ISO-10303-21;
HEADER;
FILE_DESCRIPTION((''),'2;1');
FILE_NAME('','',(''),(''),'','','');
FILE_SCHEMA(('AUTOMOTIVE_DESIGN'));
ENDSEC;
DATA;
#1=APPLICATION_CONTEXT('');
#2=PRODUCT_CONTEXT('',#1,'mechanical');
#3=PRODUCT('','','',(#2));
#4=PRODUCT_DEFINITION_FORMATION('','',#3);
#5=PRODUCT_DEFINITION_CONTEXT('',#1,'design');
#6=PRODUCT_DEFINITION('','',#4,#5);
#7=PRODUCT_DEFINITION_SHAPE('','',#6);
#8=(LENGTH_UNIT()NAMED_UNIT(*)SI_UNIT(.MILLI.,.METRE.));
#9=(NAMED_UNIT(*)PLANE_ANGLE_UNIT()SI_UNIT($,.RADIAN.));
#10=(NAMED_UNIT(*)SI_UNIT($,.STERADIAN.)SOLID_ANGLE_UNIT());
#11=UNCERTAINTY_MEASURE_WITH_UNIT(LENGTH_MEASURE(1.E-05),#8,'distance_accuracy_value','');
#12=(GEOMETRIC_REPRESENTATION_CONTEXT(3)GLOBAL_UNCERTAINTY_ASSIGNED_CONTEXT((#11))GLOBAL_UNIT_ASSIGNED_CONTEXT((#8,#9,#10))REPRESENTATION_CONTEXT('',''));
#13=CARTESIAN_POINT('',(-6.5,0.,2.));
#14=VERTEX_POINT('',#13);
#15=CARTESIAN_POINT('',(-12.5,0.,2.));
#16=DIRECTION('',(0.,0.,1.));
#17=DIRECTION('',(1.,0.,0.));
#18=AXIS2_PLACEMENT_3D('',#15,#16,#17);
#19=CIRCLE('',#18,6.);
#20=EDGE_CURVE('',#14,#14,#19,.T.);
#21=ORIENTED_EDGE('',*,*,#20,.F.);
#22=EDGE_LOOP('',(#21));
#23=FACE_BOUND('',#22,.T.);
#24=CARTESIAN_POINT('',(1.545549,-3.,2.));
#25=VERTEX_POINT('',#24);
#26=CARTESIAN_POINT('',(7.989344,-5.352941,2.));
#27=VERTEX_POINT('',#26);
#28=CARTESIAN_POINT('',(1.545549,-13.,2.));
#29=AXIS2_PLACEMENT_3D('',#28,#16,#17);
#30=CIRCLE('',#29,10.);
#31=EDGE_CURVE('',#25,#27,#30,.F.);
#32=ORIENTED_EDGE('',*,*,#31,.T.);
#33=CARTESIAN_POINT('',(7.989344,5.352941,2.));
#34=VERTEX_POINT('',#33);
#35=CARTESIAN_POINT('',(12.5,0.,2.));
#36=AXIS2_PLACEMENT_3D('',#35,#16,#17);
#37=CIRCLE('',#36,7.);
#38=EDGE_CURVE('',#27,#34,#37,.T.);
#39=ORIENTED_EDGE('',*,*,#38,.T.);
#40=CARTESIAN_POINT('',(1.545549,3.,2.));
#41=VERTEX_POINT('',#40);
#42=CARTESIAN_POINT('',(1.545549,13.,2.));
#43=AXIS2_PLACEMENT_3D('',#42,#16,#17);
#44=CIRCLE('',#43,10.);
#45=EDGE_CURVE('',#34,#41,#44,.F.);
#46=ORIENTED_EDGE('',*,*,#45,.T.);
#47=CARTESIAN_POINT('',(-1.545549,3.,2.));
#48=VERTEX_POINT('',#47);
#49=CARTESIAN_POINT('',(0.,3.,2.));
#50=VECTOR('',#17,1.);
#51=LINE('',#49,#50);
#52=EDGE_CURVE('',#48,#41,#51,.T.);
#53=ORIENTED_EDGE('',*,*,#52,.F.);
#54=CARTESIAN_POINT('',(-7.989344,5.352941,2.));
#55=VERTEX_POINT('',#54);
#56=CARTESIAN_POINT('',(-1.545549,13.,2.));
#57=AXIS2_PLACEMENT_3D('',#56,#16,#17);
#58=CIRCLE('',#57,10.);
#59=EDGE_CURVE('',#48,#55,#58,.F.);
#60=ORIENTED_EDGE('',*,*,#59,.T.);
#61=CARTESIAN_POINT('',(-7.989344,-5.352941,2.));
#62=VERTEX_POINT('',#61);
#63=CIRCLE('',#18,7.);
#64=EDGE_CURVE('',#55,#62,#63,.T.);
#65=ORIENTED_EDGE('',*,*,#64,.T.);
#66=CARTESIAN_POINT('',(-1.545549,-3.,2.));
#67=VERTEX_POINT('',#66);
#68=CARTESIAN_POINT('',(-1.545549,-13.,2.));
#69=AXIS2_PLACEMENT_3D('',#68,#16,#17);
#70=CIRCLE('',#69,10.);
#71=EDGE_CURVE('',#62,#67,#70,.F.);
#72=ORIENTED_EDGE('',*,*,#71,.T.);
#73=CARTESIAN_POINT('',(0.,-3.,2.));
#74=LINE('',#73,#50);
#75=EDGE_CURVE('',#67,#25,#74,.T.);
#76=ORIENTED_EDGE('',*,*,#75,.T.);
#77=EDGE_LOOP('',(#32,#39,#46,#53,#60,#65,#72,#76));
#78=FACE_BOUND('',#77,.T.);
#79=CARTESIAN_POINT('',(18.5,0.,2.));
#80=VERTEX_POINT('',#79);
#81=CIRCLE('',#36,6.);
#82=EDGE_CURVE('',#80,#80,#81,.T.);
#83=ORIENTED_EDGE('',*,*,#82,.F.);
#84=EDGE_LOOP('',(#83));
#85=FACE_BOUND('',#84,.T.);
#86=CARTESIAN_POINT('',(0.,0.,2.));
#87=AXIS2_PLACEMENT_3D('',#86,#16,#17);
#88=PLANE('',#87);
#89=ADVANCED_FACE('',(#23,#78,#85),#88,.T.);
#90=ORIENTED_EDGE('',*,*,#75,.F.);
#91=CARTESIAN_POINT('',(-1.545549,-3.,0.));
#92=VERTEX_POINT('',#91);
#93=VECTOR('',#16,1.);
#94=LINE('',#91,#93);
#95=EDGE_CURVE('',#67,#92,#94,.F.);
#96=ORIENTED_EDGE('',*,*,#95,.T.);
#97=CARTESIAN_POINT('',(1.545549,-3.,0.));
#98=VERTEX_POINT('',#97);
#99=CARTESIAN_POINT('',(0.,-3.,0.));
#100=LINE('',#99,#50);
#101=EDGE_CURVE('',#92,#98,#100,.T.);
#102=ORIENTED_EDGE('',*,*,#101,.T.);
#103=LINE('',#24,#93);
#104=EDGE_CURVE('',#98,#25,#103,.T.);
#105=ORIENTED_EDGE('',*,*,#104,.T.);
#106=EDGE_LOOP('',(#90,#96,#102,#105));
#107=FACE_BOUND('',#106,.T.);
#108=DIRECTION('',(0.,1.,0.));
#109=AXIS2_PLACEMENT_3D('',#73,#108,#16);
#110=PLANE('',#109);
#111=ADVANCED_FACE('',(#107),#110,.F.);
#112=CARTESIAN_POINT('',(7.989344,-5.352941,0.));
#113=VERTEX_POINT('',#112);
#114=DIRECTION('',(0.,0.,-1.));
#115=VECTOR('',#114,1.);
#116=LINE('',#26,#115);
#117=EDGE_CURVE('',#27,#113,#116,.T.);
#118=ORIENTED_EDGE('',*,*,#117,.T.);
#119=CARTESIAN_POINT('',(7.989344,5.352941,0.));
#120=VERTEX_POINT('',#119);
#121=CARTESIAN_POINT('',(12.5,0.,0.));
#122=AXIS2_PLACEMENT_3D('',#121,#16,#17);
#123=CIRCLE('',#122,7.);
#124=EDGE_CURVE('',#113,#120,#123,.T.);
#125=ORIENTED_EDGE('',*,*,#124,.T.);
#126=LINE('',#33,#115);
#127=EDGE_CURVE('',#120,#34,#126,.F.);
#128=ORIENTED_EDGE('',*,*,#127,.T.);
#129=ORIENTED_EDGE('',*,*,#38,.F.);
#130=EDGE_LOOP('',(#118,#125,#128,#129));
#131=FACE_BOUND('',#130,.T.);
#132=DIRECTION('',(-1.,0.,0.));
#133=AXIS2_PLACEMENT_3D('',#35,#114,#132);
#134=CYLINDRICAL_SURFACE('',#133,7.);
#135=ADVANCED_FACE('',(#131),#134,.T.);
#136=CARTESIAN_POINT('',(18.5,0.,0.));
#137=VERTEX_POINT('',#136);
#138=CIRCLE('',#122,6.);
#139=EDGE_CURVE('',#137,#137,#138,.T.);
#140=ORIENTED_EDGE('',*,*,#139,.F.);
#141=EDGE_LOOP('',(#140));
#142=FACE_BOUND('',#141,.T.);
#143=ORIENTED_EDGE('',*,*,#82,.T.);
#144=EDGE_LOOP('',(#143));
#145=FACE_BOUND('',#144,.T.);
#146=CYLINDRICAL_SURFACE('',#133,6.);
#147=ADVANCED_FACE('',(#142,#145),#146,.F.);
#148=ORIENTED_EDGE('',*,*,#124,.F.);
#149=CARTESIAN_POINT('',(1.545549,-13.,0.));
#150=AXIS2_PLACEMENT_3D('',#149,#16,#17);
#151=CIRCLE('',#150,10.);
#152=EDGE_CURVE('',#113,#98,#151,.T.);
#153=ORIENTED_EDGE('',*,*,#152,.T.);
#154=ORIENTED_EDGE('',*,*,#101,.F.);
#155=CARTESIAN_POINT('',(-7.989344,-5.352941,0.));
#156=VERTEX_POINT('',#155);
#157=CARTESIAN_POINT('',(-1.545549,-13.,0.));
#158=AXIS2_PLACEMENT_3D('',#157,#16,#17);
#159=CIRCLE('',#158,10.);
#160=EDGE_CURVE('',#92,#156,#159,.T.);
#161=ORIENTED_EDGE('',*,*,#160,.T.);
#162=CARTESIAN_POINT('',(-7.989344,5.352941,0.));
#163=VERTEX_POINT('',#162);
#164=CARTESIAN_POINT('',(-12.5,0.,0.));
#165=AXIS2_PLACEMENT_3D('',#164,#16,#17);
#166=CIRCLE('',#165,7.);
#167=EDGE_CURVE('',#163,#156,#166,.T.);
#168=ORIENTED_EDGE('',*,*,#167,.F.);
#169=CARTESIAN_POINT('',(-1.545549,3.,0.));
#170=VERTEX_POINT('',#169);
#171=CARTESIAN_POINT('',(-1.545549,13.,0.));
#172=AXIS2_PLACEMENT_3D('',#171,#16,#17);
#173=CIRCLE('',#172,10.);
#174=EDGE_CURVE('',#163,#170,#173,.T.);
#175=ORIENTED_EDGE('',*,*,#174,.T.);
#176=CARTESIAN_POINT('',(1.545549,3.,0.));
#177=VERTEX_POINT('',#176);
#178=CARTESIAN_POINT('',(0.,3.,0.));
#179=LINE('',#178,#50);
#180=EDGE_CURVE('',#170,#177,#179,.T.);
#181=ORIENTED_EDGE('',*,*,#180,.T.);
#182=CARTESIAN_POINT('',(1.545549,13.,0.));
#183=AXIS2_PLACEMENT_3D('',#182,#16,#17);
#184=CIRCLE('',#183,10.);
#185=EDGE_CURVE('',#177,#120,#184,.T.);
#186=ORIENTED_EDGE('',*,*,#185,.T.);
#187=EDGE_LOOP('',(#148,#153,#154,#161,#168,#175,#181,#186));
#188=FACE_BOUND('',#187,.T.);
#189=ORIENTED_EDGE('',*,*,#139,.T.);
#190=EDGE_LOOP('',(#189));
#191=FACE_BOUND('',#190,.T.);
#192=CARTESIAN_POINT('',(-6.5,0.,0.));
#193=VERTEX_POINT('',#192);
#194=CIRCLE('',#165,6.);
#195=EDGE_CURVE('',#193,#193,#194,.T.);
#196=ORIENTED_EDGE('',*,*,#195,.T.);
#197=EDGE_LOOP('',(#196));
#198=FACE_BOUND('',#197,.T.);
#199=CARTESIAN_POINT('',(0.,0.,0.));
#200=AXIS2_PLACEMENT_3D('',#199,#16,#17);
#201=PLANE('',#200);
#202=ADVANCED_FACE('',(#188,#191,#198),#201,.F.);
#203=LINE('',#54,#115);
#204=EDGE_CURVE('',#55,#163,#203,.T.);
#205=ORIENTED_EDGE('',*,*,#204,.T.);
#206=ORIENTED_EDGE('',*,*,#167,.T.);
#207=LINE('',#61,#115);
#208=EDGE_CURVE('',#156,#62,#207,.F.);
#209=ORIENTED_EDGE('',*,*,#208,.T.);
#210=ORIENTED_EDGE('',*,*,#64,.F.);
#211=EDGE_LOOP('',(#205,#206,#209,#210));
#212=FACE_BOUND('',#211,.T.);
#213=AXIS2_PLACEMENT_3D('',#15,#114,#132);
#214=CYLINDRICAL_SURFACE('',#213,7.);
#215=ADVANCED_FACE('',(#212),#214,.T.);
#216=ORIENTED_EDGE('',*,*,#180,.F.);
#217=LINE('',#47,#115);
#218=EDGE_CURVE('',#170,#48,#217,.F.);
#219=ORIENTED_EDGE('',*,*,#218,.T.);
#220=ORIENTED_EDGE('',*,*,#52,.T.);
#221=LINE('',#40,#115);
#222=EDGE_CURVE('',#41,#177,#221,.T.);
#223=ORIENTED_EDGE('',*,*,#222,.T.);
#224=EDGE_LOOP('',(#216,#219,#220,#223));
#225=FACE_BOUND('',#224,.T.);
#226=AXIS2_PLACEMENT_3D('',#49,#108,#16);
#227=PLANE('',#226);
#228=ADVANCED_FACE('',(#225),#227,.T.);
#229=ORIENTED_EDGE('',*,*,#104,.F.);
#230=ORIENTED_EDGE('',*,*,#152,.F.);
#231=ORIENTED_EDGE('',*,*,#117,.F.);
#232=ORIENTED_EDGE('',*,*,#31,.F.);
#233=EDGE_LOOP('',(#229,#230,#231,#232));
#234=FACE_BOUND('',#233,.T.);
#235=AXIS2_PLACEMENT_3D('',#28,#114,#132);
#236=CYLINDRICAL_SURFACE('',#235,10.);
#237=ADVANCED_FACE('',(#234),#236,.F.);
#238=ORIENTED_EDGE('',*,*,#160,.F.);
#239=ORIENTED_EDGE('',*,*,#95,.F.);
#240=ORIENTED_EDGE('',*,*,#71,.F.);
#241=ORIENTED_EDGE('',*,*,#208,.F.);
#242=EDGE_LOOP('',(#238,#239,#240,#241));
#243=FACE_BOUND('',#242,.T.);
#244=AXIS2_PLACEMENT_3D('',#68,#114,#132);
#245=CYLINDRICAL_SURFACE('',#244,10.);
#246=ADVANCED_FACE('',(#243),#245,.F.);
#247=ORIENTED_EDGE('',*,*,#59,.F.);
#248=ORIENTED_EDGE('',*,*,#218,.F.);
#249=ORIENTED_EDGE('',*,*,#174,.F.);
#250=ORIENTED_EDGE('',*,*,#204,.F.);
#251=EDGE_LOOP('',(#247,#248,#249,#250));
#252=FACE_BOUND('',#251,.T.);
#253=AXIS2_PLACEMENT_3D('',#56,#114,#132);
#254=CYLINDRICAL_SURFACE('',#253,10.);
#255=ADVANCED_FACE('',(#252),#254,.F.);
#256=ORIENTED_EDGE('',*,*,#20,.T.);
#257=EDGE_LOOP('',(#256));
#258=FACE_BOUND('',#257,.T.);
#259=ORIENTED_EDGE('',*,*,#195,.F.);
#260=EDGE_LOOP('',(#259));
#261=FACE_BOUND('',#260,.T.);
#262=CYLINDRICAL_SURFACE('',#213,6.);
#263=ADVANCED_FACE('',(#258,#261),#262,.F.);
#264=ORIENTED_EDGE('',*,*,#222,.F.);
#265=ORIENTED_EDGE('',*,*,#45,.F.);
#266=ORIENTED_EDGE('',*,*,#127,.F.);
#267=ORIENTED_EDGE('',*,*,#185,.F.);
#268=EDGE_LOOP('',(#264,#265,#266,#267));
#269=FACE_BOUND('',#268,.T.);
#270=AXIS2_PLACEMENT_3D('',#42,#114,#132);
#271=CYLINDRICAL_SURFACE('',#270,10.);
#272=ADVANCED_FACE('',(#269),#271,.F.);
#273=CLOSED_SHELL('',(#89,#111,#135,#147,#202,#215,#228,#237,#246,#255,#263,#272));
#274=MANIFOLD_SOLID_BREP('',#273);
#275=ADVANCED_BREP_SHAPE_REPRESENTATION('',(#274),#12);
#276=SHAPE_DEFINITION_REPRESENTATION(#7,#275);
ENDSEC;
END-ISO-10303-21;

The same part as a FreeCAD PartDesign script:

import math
import FreeCAD as App
import Part
import Sketcher
Q = App.Units.Quantity


def edges_at(feature, points):
    """Names of the edges that pass closest to the given points."""
    edges = feature.Shape.Edges
    near = lambda p: min(range(len(edges)), key=lambda i: edges[i].distToShape(Part.Vertex(*p))[0])
    return sorted({f"Edge{near(p) + 1}" for p in points})

doc = App.newDocument("Part")
params = doc.addObject("Spreadsheet::Sheet", "Params")
for row, (alias, value) in enumerate([
    ("sketch1_diameter", "12 mm"),
    ("sketch1_radius", "7 mm"),
    ("pad1_length", "2 mm"),
    ("fillet_radius", "10 mm"),
], start=1):
    params.set(f"A{row}", alias)
    params.set(f"B{row}", "=" + value)
    params.setAlias(f"B{row}", alias)

body = doc.addObject("PartDesign::Body", "Body")

sketch1 = body.newObject("Sketcher::SketchObject", "Sketch")
sketch1.AttachmentSupport = (doc.getObject("XY_Plane"), [""])
sketch1.MapMode = "FlatFace"
sketch1.addGeometry([
    Part.ArcOfCircle(Part.Circle(App.Vector(-12.5, 0, 0), App.Vector(0, 0, 1), 7), math.radians(25.376934), math.radians(334.623066)),
    Part.LineSegment(App.Vector(-6.175445, -3, 0), App.Vector(6.175445, -3, 0)),
    Part.ArcOfCircle(Part.Circle(App.Vector(12.5, 0, 0), App.Vector(0, 0, 1), 7), math.radians(-154.623066), math.radians(154.623066)),
    Part.LineSegment(App.Vector(6.175445, 3, 0), App.Vector(-6.175445, 3, 0)),
    Part.Circle(App.Vector(-12.5, 0, 0), App.Vector(0, 0, 1), 6),
    Part.Circle(App.Vector(12.5, 0, 0), App.Vector(0, 0, 1), 6),
], False)
sketch1.addConstraint([
    Sketcher.Constraint("Coincident", 0, 2, 1, 1),
    Sketcher.Constraint("Coincident", 1, 2, 2, 1),
    Sketcher.Constraint("Coincident", 2, 2, 3, 1),
    Sketcher.Constraint("Coincident", 3, 2, 0, 1),
    Sketcher.Constraint("Horizontal", 1),
    Sketcher.Constraint("Horizontal", 3),
    Sketcher.Constraint("Coincident", 4, 3, 0, 3),
    Sketcher.Constraint("Coincident", 5, 3, 2, 3),
    Sketcher.Constraint("Equal", 0, 2),
    Sketcher.Constraint("Equal", 4, 5),
    Sketcher.Constraint("Symmetric", 0, 3, 2, 3, -1, 1),
    Sketcher.Constraint("Symmetric", 1, 2, 2, 2, -1),
    Sketcher.Constraint("Diameter", 4, Q("12 mm")),
    Sketcher.Constraint("Radius", 0, Q("7 mm")),
    Sketcher.Constraint("DistanceY", 0, 2, -1, 1, Q("3 mm")),
    Sketcher.Constraint("DistanceX", 0, 3, 2, 3, Q("25 mm")),
])
sketch1.setExpression("Constraints[12]", "Params.sketch1_diameter")
sketch1.setExpression("Constraints[13]", "Params.sketch1_radius")
pad1 = body.newObject("PartDesign::Pad", "Pad")
pad1.Profile = sketch1
pad1.setExpression("Length", "Params.pad1_length")
doc.recompute()

fillet = body.newObject("PartDesign::Fillet", "Fillet")
fillet.Base = (pad1, edges_at(pad1, [
    (-6.175, 3, 1),
    (6.175, 3, 1),
    (6.175, -3, 1),
    (-6.175, -3, 1),
]))
fillet.setExpression("Radius", "Params.fillet_radius")

doc.recompute()
